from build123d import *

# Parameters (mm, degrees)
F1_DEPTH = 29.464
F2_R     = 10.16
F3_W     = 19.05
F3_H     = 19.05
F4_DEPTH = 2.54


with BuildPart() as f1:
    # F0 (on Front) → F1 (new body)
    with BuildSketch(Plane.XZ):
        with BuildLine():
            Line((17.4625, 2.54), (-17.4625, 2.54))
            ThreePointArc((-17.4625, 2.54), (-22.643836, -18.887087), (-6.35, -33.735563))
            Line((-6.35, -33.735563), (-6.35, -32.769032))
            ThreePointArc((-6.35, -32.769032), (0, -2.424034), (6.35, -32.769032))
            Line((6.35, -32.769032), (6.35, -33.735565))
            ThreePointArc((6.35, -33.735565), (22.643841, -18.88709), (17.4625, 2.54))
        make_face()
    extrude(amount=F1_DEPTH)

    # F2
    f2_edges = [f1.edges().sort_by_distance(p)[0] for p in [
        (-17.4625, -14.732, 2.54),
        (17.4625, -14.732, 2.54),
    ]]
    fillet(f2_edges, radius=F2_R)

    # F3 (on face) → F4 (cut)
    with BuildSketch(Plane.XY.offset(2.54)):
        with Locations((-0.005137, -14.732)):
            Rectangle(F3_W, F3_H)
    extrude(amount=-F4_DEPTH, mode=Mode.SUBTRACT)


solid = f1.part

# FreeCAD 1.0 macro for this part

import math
import FreeCAD as App
import Part
import Sketcher

V = App.Vector
Q = App.Units.Quantity


def edges_at(feature, points):
    """Names of the edges that pass closest to the given points."""
    edges = feature.Shape.Edges
    near = lambda p: min(range(len(edges)), key=lambda i: edges[i].distToShape(Part.Vertex(*p))[0])
    return sorted({f"Edge{near(p) + 1}" for p in points})

doc = App.newDocument("Part")
body = doc.addObject("PartDesign::Body", "Body")

sketch1 = body.newObject("Sketcher::SketchObject", "Sketch")
sketch1.AttachmentSupport = (doc.getObject("XZ_Plane"), [""])
sketch1.MapMode = "FlatFace"
sketch1.addGeometry(Part.LineSegment(V(17.5, 2.5, 0), V(-17.5, 2.5, 0)), False)
sketch1.addGeometry(Part.ArcOfCircle(Part.Circle(V(-2, -12.5, 0), V(0, 0, 1), 21.6), math.radians(136), math.radians(258)), False)
sketch1.addGeometry(Part.LineSegment(V(-6.3, -33.7, 0), V(-6.3, -32.8, 0)), False)
sketch1.addGeometry(Part.ArcOfCircle(Part.Circle(V(0, -18.3, 0), V(0, 0, 1), 15.8), math.radians(-66), math.radians(246)), False)
sketch1.addGeometry(Part.LineSegment(V(6.3, -32.8, 0), V(6.3, -33.7, 0)), False)
sketch1.addGeometry(Part.ArcOfCircle(Part.Circle(V(2, -12.5, 0), V(0, 0, 1), 21.6), math.radians(-78), math.radians(44)), False)
sketch1.addConstraint(Sketcher.Constraint("Coincident", 0, 2, 1, 1))
sketch1.addConstraint(Sketcher.Constraint("Coincident", 1, 2, 2, 1))
sketch1.addConstraint(Sketcher.Constraint("Coincident", 2, 2, 3, 2))
sketch1.addConstraint(Sketcher.Constraint("Coincident", 3, 1, 4, 1))
sketch1.addConstraint(Sketcher.Constraint("Coincident", 4, 2, 5, 1))
sketch1.addConstraint(Sketcher.Constraint("Coincident", 5, 2, 0, 1))
sketch1.addConstraint(Sketcher.Constraint("Horizontal", 0))
sketch1.addConstraint(Sketcher.Constraint("Vertical", 2))
sketch1.addConstraint(Sketcher.Constraint("Vertical", 4))
sketch1.addConstraint(Sketcher.Constraint("Symmetric", 1, 3, 5, 3, -2))
sketch1.addConstraint(Sketcher.Constraint("Symmetric", 2, 2, 3, 1, -2))
sketch1.addConstraint(Sketcher.Constraint("DistanceY", -1, 1, 0, 2, Q("0.1 in")))
sketch1.addConstraint(Sketcher.Constraint("Radius", 3, Q("0.6235 in")))
sketch1.addConstraint(Sketcher.Constraint("DistanceX", 2, 2, 3, 1, Q("0.5 in")))
sketch1.addConstraint(Sketcher.Constraint("DistanceX", 0, 2, 0, 1, Q("1.375 in")))
sketch1.addConstraint(Sketcher.Constraint("DistanceX", 0, 2, -1, 1, Q("0.6875 in")))
sketch1.addConstraint(Sketcher.Constraint("Radius", 5, Q("21.636761 mm")))
sketch1.addConstraint(Sketcher.Constraint("DistanceY", 2, 1, 2, 2, Q("0.966531 mm")))
sketch1.addConstraint(Sketcher.Constraint("DistanceX", 1, 3, -1, 1, Q("1.955998 mm")))
pad1 = body.newObject("PartDesign::Pad", "Pad")
pad1.Profile = sketch1
pad1.Length = Q("1.16 in")
doc.recompute()

fillet = body.newObject("PartDesign::Fillet", "Fillet")
fillet.Base = (pad1, edges_at(pad1, [(-17.462, -14.732, 2.54), (17.462, -14.732, 2.54)]))
fillet.Radius = Q("0.4 in")

sketch2 = body.newObject("Sketcher::SketchObject", "Sketch001")
sketch2.AttachmentSupport = (doc.getObject("XY_Plane"), [""])
sketch2.MapMode = "FlatFace"
sketch2.AttachmentOffset = App.Placement(V(0, 0, 0.1 * 25.4), App.Rotation())
sketch2.addGeometry(Part.LineSegment(V(-10, -5, 0), V(-10, -24, 0)), False)
sketch2.addGeometry(Part.LineSegment(V(-10, -24, 0), V(10, -24, 0)), False)
sketch2.addGeometry(Part.LineSegment(V(10, -24, 0), V(10, -5, 0)), False)
sketch2.addGeometry(Part.LineSegment(V(10, -5, 0), V(-10, -5, 0)), False)
sketch2.addConstraint(Sketcher.Constraint("Coincident", 0, 2, 1, 1))
sketch2.addConstraint(Sketcher.Constraint("Coincident", 1, 2, 2, 1))
sketch2.addConstraint(Sketcher.Constraint("Coincident", 2, 2, 3, 1))
sketch2.addConstraint(Sketcher.Constraint("Coincident", 3, 2, 0, 1))
sketch2.addConstraint(Sketcher.Constraint("Vertical", 0))
sketch2.addConstraint(Sketcher.Constraint("Horizontal", 1))
sketch2.addConstraint(Sketcher.Constraint("Vertical", 2))
sketch2.addConstraint(Sketcher.Constraint("Horizontal", 3))
sketch2.addConstraint(Sketcher.Constraint("Equal", 3, 0))
sketch2.addConstraint(Sketcher.Constraint("DistanceX", 1, 1, 1, 2, Q("0.75 in")))
sketch2.addConstraint(Sketcher.Constraint("DistanceY", 0, 2, -1, 1, Q("0.955 in")))
sketch2.addConstraint(Sketcher.Constraint("DistanceX", 0, 2, -1, 1, Q("9.530137 mm")))
pocket1 = body.newObject("PartDesign::Pocket", "Pocket")
pocket1.Profile = sketch2
pocket1.Length = Q("0.1 in")

doc.recompute()
